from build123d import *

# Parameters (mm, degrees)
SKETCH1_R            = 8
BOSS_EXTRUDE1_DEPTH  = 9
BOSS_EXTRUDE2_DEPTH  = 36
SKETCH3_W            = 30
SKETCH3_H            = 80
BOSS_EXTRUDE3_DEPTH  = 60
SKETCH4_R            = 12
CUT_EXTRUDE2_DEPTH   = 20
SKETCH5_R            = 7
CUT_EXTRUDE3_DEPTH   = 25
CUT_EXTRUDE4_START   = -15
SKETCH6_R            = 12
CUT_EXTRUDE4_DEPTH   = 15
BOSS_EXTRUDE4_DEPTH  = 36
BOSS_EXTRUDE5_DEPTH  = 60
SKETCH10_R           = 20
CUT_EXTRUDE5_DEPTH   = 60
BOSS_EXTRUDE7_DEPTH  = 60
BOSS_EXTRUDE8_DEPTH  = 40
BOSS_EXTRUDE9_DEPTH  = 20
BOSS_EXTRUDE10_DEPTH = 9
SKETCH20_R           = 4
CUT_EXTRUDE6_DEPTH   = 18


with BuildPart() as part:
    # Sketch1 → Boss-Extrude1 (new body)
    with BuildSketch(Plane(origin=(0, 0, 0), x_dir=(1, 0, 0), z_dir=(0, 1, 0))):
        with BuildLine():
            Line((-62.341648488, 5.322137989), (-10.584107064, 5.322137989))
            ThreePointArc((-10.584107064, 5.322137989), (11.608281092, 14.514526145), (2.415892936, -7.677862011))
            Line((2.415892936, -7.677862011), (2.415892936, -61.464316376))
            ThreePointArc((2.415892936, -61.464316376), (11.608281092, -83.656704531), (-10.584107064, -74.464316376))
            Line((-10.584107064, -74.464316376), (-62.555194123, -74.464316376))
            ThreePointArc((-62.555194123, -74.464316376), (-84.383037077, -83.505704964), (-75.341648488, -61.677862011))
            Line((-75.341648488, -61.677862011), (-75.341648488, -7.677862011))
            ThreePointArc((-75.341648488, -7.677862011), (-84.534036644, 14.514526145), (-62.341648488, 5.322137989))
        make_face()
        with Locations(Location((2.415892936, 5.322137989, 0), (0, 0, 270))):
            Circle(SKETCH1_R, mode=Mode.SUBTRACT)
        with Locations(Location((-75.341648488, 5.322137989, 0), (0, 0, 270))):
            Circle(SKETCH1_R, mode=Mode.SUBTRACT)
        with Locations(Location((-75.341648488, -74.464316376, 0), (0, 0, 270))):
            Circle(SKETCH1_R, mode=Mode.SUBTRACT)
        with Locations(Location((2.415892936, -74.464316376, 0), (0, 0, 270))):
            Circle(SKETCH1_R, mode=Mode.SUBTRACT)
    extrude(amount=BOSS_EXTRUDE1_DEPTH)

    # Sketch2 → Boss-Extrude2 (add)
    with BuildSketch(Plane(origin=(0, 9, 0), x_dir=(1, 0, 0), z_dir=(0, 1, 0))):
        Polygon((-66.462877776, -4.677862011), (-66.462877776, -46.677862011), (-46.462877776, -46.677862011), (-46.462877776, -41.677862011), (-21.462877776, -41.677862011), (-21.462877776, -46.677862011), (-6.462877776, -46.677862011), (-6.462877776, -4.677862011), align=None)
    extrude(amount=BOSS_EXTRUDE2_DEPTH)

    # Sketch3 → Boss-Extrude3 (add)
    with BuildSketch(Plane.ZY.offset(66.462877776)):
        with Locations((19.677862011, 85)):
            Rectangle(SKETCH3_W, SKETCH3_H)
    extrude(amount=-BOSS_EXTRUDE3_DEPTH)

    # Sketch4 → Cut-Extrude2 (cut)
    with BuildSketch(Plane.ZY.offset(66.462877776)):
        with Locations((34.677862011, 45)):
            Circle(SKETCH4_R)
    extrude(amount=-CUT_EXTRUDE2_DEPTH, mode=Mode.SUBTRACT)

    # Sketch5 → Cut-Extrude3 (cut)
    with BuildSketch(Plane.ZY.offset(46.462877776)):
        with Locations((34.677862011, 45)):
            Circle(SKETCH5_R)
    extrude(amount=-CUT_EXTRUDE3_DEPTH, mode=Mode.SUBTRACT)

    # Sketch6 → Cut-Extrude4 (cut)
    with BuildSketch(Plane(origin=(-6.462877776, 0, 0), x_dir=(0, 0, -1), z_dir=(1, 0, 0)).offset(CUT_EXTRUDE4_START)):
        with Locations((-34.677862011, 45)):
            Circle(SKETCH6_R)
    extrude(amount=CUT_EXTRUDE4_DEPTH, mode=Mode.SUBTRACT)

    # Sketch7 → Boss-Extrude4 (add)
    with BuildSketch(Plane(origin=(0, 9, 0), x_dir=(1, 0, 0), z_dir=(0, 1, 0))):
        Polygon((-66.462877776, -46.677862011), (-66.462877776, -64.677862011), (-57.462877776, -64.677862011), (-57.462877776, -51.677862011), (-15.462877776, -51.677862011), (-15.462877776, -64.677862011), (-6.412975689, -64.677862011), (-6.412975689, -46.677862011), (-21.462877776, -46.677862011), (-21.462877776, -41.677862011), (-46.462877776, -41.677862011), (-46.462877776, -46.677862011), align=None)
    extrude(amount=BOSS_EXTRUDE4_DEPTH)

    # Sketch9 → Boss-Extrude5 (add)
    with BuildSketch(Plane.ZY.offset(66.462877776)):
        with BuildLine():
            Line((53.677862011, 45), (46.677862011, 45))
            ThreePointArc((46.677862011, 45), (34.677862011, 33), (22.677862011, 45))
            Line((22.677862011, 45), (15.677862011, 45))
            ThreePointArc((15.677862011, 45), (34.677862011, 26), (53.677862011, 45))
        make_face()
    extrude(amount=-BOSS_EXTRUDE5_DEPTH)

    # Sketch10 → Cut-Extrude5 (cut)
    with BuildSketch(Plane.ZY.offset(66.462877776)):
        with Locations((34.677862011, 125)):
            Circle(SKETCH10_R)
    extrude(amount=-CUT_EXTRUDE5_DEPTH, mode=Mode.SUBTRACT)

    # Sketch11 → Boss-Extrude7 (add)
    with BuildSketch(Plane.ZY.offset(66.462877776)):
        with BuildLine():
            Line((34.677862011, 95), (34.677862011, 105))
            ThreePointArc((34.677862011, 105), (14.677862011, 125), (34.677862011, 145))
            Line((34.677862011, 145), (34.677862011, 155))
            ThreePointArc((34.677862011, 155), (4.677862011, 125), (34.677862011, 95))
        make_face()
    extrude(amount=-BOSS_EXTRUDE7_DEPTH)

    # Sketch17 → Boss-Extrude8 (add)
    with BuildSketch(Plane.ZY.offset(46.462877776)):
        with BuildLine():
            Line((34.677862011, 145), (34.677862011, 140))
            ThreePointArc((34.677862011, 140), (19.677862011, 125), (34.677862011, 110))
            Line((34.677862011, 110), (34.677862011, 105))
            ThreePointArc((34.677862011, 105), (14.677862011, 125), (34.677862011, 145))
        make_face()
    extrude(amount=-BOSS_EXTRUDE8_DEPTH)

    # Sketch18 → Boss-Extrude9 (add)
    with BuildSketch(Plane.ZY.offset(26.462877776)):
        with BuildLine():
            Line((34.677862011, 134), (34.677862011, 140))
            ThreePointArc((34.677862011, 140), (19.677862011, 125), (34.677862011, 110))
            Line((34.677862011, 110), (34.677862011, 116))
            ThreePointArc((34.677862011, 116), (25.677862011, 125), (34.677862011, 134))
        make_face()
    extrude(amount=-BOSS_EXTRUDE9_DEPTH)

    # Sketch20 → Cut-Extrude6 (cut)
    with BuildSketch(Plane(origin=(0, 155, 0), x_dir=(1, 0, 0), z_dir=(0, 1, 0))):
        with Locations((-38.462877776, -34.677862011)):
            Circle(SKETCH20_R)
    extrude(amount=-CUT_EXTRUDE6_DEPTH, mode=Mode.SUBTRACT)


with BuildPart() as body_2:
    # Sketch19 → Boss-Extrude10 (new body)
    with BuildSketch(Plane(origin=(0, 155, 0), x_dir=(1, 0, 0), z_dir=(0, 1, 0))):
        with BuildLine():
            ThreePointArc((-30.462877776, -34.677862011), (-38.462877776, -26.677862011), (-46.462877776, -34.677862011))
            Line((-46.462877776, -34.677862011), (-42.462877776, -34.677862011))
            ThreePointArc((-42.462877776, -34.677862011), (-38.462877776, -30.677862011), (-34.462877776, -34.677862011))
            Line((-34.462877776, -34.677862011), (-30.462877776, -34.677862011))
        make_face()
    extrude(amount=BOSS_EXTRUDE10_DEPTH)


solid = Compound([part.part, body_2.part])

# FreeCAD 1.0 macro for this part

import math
import FreeCAD as App
import Part
import Sketcher

V = App.Vector
Q = App.Units.Quantity


def add_polygon(sketch, points):
    """Adds a closed chain of lines whose ends are joined by coincident constraints."""
    first, n = sketch.GeometryCount, len(points)
    for a, b in zip(points, points[1:] + points[:1]):
        sketch.addGeometry(Part.LineSegment(App.Vector(*a, 0), App.Vector(*b, 0)), False)
    for i in range(n):
        sketch.addConstraint(Sketcher.Constraint("Coincident", first + i, 2, first + (i + 1) % n, 1))

doc = App.newDocument("Part")
body = doc.addObject("PartDesign::Body", "Body")

# Sketch on XZ plane
sketch1 = doc.addObject("Sketcher::SketchObject", "Sketch")
body.addObject(sketch1)
sketch1.AttachmentSupport = (doc.XZ_Plane, [""])
sketch1.MapMode = "FlatFace"
sketch1.addGeometry([
    Part.LineSegment(V(-10.584107, -5.322138, 0), V(-62.341648, -5.322138, 0)),  # 0
    Part.ArcOfCircle(Part.Circle(V(-75.341648, -5.322138, 0), V(0, 0, 1), 13), math.radians(90), math.radians(360)),  # 1
    Part.LineSegment(V(-75.341648, 7.677862, 0), V(-75.341648, 61.677862, 0)),  # 2
    Part.ArcOfCircle(Part.Circle(V(-75.341648, 74.464316, 0), V(0, 0, 1), 12.786454), math.radians(0), math.radians(270)),  # 3
    Part.LineSegment(V(-62.555194, 74.464316, 0), V(-10.584107, 74.464316, 0)),  # 4
    Part.ArcOfCircle(Part.Circle(V(2.415893, 74.464316, 0), V(0, 0, 1), 13), math.radians(-90), math.radians(180)),  # 5
    Part.LineSegment(V(2.415893, 61.464316, 0), V(2.415893, 7.677862, 0)),  # 6
    Part.ArcOfCircle(Part.Circle(V(2.415893, -5.322138, 0), V(0, 0, 1), 13), math.radians(180), math.radians(450)),  # 7
    Part.Circle(V(2.415893, 74.464316, 0), V(0, 0, 1), 8),  # 8
    Part.Circle(V(-75.341648, 74.464316, 0), V(0, 0, 1), 8),  # 9
    Part.Circle(V(2.415893, -5.322138, 0), V(0, 0, 1), 8),  # 10
    Part.Circle(V(-75.341648, -5.322138, 0), V(0, 0, 1), 8),  # 11
], False)
sketch1.addConstraint([
    Sketcher.Constraint("Coincident", 0, 2, 1, 2),
    Sketcher.Constraint("Coincident", 1, 1, 2, 1),
    Sketcher.Constraint("Coincident", 2, 2, 3, 2),
    Sketcher.Constraint("Coincident", 3, 1, 4, 1),
    Sketcher.Constraint("Coincident", 4, 2, 5, 2),
    Sketcher.Constraint("Coincident", 5, 1, 6, 1),
    Sketcher.Constraint("Coincident", 6, 2, 7, 2),
    Sketcher.Constraint("Coincident", 7, 1, 0, 1),
    Sketcher.Constraint("Horizontal", 0),
    Sketcher.Constraint("Vertical", 2),
    Sketcher.Constraint("Horizontal", 4),
    Sketcher.Constraint("Vertical", 6),
    Sketcher.Constraint("Coincident", 8, 3, 5, 3),
    Sketcher.Constraint("Coincident", 9, 3, 3, 3),
    Sketcher.Constraint("Coincident", 10, 3, 7, 3),
    Sketcher.Constraint("Coincident", 11, 3, 1, 3),
    Sketcher.Constraint("Equal", 1, 5),
    Sketcher.Constraint("Equal", 5, 7),
    Sketcher.Constraint("Equal", 8, 9),
    Sketcher.Constraint("Equal", 9, 10),
    Sketcher.Constraint("Equal", 10, 11),
    Sketcher.Constraint("Horizontal", 3, 3, 5, 3),
    Sketcher.Constraint("Horizontal", 1, 3, 7, 3),
    Sketcher.Constraint("Horizontal", 11, 3, 0, 2),
    Sketcher.Constraint("Horizontal", 9, 3, 3, 1),
    Sketcher.Constraint("Vertical", 1, 3, 3, 3),
    Sketcher.Constraint("Vertical", 5, 3, 7, 3),
    Sketcher.Constraint("Vertical", 11, 3, 1, 1),
    Sketcher.Constraint("Vertical", 10, 3, 5, 1),
    Sketcher.Constraint("Diameter", 8, Q("16 mm")),
    Sketcher.Constraint("Radius", 1, Q("13 mm")),
    Sketcher.Constraint("DistanceY", 2, 1, 2, 2, Q("54 mm")),
    Sketcher.Constraint("Radius", 3, Q("12.786454 mm")),
    Sketcher.Constraint("DistanceX", 0, 2, 0, 1, Q("51.757541 mm")),
    Sketcher.Constraint("DistanceX", 1, 3, -1, 1, Q("75.341648 mm")),
    Sketcher.Constraint("DistanceY", 1, 3, -1, 1, Q("5.322138 mm")),
])
pad1 = doc.addObject("PartDesign::Pad", "Pad")
body.addObject(pad1)
pad1.Profile = sketch1
pad1.Length = 9
pad1.Reversed = True

# Sketch on XZ plane
sketch2 = doc.addObject("Sketcher::SketchObject", "Sketch001")
body.addObject(sketch2)
sketch2.AttachmentSupport = (doc.XZ_Plane, [""])
sketch2.MapMode = "FlatFace"
sketch2.AttachmentOffset = App.Placement(V(0, 0, -9), App.Rotation())
add_polygon(sketch2, [(-66.462878, 4.677862), (-66.462878, 46.677862), (-46.462878, 46.677862), (-46.462878, 41.677862), (-21.462878, 41.677862), (-21.462878, 46.677862), (-6.462878, 46.677862), (-6.462878, 4.677862)])  # lines 0-7
sketch2.addConstraint([
    Sketcher.Constraint("Vertical", 0),
    Sketcher.Constraint("Horizontal", 1),
    Sketcher.Constraint("Vertical", 2),
    Sketcher.Constraint("Horizontal", 3),
    Sketcher.Constraint("Vertical", 4),
    Sketcher.Constraint("Horizontal", 5),
    Sketcher.Constraint("Vertical", 6),
    Sketcher.Constraint("Horizontal", 7),
    Sketcher.Constraint("Horizontal", 1, 2, 4, 2),
    Sketcher.Constraint("DistanceX", 1, 1, 1, 2, Q("20 mm")),
    Sketcher.Constraint("DistanceX", 3, 1, 3, 2, Q("25 mm")),
    Sketcher.Constraint("DistanceX", 5, 1, 5, 2, Q("15 mm")),
    Sketcher.Constraint("DistanceY", 0, 1, 0, 2, Q("42 mm")),
    Sketcher.Constraint("DistanceY", 2, 2, 2, 1, Q("5 mm")),
    Sketcher.Constraint("DistanceX", 0, 2, -1, 1, Q("66.462878 mm")),
    Sketcher.Constraint("DistanceY", -1, 1, 0, 2, Q("46.677862 mm")),
])
pad2 = doc.addObject("PartDesign::Pad", "Pad001")
body.addObject(pad2)
pad2.Profile = sketch2
pad2.Length = 36
pad2.Reversed = True

# Sketch on YZ plane
sketch3 = doc.addObject("Sketcher::SketchObject", "Sketch002")
body.addObject(sketch3)
sketch3.AttachmentSupport = (doc.YZ_Plane, [""])
sketch3.MapMode = "FlatFace"
sketch3.AttachmentOffset = App.Placement(V(0, 0, -66.462878), App.Rotation())
add_polygon(sketch3, [(125, 4.677862), (45, 4.677862), (45, 34.677862), (125, 34.677862)])  # lines 0-3
sketch3.addConstraint([
    Sketcher.Constraint("Horizontal", 0),
    Sketcher.Constraint("Vertical", 1),
    Sketcher.Constraint("Horizontal", 2),
    Sketcher.Constraint("Vertical", 3),
    Sketcher.Constraint("DistanceX", 0, 2, 0, 1, Q("80 mm")),
    Sketcher.Constraint("DistanceY", 1, 1, 1, 2, Q("30 mm")),
    Sketcher.Constraint("DistanceX", -1, 1, 0, 2, Q("45 mm")),
    Sketcher.Constraint("DistanceY", -1, 1, 0, 2, Q("4.677862 mm")),
])
pad3 = doc.addObject("PartDesign::Pad", "Pad002")
body.addObject(pad3)
pad3.Profile = sketch3
pad3.Length = 60

# Sketch on YZ plane
sketch4 = doc.addObject("Sketcher::SketchObject", "Sketch003")
body.addObject(sketch4)
sketch4.AttachmentSupport = (doc.YZ_Plane, [""])
sketch4.MapMode = "FlatFace"
sketch4.AttachmentOffset = App.Placement(V(0, 0, -66.462878), App.Rotation())
sketch4.addGeometry(Part.Circle(V(45, 34.677862, 0), V(0, 0, 1), 12), False)
sketch4.addConstraint([
    Sketcher.Constraint("Diameter", 0, Q("24 mm")),
    Sketcher.Constraint("DistanceX", -1, 1, 0, 3, Q("45 mm")),
    Sketcher.Constraint("DistanceY", -1, 1, 0, 3, Q("34.677862 mm")),
])
pocket1 = doc.addObject("PartDesign::Pocket", "Pocket")
body.addObject(pocket1)
pocket1.Profile = sketch4
pocket1.Length = 20
pocket1.Reversed = True

# Sketch on YZ plane
sketch5 = doc.addObject("Sketcher::SketchObject", "Sketch004")
body.addObject(sketch5)
sketch5.AttachmentSupport = (doc.YZ_Plane, [""])
sketch5.MapMode = "FlatFace"
sketch5.AttachmentOffset = App.Placement(V(0, 0, -46.462878), App.Rotation())
sketch5.addGeometry(Part.Circle(V(45, 34.677862, 0), V(0, 0, 1), 7), False)
sketch5.addConstraint([
    Sketcher.Constraint("Diameter", 0, Q("14 mm")),
    Sketcher.Constraint("DistanceX", -1, 1, 0, 3, Q("45 mm")),
    Sketcher.Constraint("DistanceY", -1, 1, 0, 3, Q("34.677862 mm")),
])
pocket2 = doc.addObject("PartDesign::Pocket", "Pocket001")
body.addObject(pocket2)
pocket2.Profile = sketch5
pocket2.Length = 25
pocket2.Reversed = True

# Sketch on YZ plane
sketch6 = doc.addObject("Sketcher::SketchObject", "Sketch005")
body.addObject(sketch6)
sketch6.AttachmentSupport = (doc.YZ_Plane, [""])
sketch6.MapMode = "FlatFace"
sketch6.AttachmentOffset = App.Placement(V(0, 0, -21.462878), App.Rotation())
sketch6.addGeometry(Part.Circle(V(45, 34.677862, 0), V(0, 0, 1), 12), False)
sketch6.addConstraint([
    Sketcher.Constraint("Diameter", 0, Q("24 mm")),
    Sketcher.Constraint("DistanceX", -1, 1, 0, 3, Q("45 mm")),
    Sketcher.Constraint("DistanceY", -1, 1, 0, 3, Q("34.677862 mm")),
])
pocket3 = doc.addObject("PartDesign::Pocket", "Pocket002")
body.addObject(pocket3)
pocket3.Profile = sketch6
pocket3.Length = 15
pocket3.Reversed = True

# Sketch on XZ plane
sketch7 = doc.addObject("Sketcher::SketchObject", "Sketch006")
body.addObject(sketch7)
sketch7.AttachmentSupport = (doc.XZ_Plane, [""])
sketch7.MapMode = "FlatFace"
sketch7.AttachmentOffset = App.Placement(V(0, 0, -9), App.Rotation())
add_polygon(sketch7, [(-66.462878, 46.677862), (-66.462878, 64.677862), (-57.462878, 64.677862), (-57.462878, 51.677862), (-15.462878, 51.677862), (-15.462878, 64.677862), (-6.412976, 64.677862), (-6.412976, 46.677862), (-21.462878, 46.677862), (-21.462878, 41.677862), (-46.462878, 41.677862), (-46.462878, 46.677862)])  # lines 0-11
sketch7.addConstraint([
    Sketcher.Constraint("Vertical", 0),
    Sketcher.Constraint("Horizontal", 1),
    Sketcher.Constraint("Vertical", 2),
    Sketcher.Constraint("Horizontal", 3),
    Sketcher.Constraint("Vertical", 4),
    Sketcher.Constraint("Horizontal", 5),
    Sketcher.Constraint("Vertical", 6),
    Sketcher.Constraint("Horizontal", 7),
    Sketcher.Constraint("Vertical", 8),
    Sketcher.Constraint("Horizontal", 9),
    Sketcher.Constraint("Vertical", 10),
    Sketcher.Constraint("Horizontal", 11),
    Sketcher.Constraint("Horizontal", 1, 2, 4, 2),
    Sketcher.Constraint("Horizontal", 7, 2, 10, 2),
    Sketcher.Constraint("DistanceX", 1, 1, 1, 2, Q("9 mm")),
    Sketcher.Constraint("DistanceX", 3, 1, 3, 2, Q("42 mm")),
    Sketcher.Constraint("DistanceX", 9, 2, 9, 1, Q("25 mm")),
    Sketcher.Constraint("DistanceX", 11, 2, 11, 1, Q("20 mm")),
    Sketcher.Constraint("DistanceY", 0, 1, 0, 2, Q("18 mm")),
    Sketcher.Constraint("DistanceY", 2, 2, 2, 1, Q("13 mm")),
    Sketcher.Constraint("DistanceY", 8, 2, 8, 1, Q("5 mm")),
    Sketcher.Constraint("DistanceX", 5, 1, 5, 2, Q("9.049902 mm")),
    Sketcher.Constraint("DistanceX", 0, 2, -1, 1, Q("66.462878 mm")),
    Sketcher.Constraint("DistanceY", -1, 1, 0, 2, Q("64.677862 mm")),
])
pad4 = doc.addObject("PartDesign::Pad", "Pad003")
body.addObject(pad4)
pad4.Profile = sketch7
pad4.Length = 36
pad4.Reversed = True

# Sketch on YZ plane
sketch8 = doc.addObject("Sketcher::SketchObject", "Sketch007")
body.addObject(sketch8)
sketch8.AttachmentSupport = (doc.YZ_Plane, [""])
sketch8.MapMode = "FlatFace"
sketch8.AttachmentOffset = App.Placement(V(0, 0, -66.462878), App.Rotation())
sketch8.addGeometry([
    Part.LineSegment(V(45, 53.677862, 0), V(45, 46.677862, 0)),
    Part.ArcOfCircle(Part.Circle(V(45, 34.677862, 0), V(0, 0, 1), 12), math.radians(90), math.radians(270)),
    Part.LineSegment(V(45, 22.677862, 0), V(45, 15.677862, 0)),
    Part.ArcOfCircle(Part.Circle(V(45, 34.677862, 0), V(0, 0, 1), 19), math.radians(90), math.radians(270)),
], False)
sketch8.addConstraint([
    Sketcher.Constraint("Coincident", 0, 2, 1, 1),
    Sketcher.Constraint("Coincident", 1, 2, 2, 1),
    Sketcher.Constraint("Coincident", 2, 2, 3, 2),
    Sketcher.Constraint("Coincident", 3, 1, 0, 1),
    Sketcher.Constraint("Vertical", 0),
    Sketcher.Constraint("Vertical", 2),
    Sketcher.Constraint("Coincident", 3, 3, 1, 3),
    Sketcher.Constraint("Vertical", 3, 3, 0, 2),
    Sketcher.Constraint("Vertical", 0, 2, 1, 2),
    Sketcher.Constraint("Radius", 1, Q("12 mm")),
    Sketcher.Constraint("Radius", 3, Q("19 mm")),
    Sketcher.Constraint("DistanceX", -1, 1, 1, 3, Q("45 mm")),
    Sketcher.Constraint("DistanceY", -1, 1, 1, 3, Q("34.677862 mm")),
])
pad5 = doc.addObject("PartDesign::Pad", "Pad004")
body.addObject(pad5)
pad5.Profile = sketch8
pad5.Length = 60

# Sketch on YZ plane
sketch9 = doc.addObject("Sketcher::SketchObject", "Sketch008")
body.addObject(sketch9)
sketch9.AttachmentSupport = (doc.YZ_Plane, [""])
sketch9.MapMode = "FlatFace"
sketch9.AttachmentOffset = App.Placement(V(0, 0, -66.462878), App.Rotation())
sketch9.addGeometry(Part.Circle(V(125, 34.677862, 0), V(0, 0, 1), 20), False)
sketch9.addConstraint([
    Sketcher.Constraint("Diameter", 0, Q("40 mm")),
    Sketcher.Constraint("DistanceX", -1, 1, 0, 3, Q("125 mm")),
    Sketcher.Constraint("DistanceY", -1, 1, 0, 3, Q("34.677862 mm")),
])
pocket4 = doc.addObject("PartDesign::Pocket", "Pocket003")
body.addObject(pocket4)
pocket4.Profile = sketch9
pocket4.Length = 60
pocket4.Reversed = True

# Sketch on YZ plane
sketch10 = doc.addObject("Sketcher::SketchObject", "Sketch009")
body.addObject(sketch10)
sketch10.AttachmentSupport = (doc.YZ_Plane, [""])
sketch10.MapMode = "FlatFace"
sketch10.AttachmentOffset = App.Placement(V(0, 0, -66.462878), App.Rotation())
sketch10.addGeometry([
    Part.LineSegment(V(95, 34.677862, 0), V(105, 34.677862, 0)),
    Part.ArcOfCircle(Part.Circle(V(125, 34.677862, 0), V(0, 0, 1), 20), math.radians(180), math.radians(360)),
    Part.LineSegment(V(145, 34.677862, 0), V(155, 34.677862, 0)),
    Part.ArcOfCircle(Part.Circle(V(125, 34.677862, 0), V(0, 0, 1), 30), math.radians(180), math.radians(360)),
], False)
sketch10.addConstraint([
    Sketcher.Constraint("Coincident", 0, 2, 1, 1),
    Sketcher.Constraint("Coincident", 1, 2, 2, 1),
    Sketcher.Constraint("Coincident", 2, 2, 3, 2),
    Sketcher.Constraint("Coincident", 3, 1, 0, 1),
    Sketcher.Constraint("Horizontal", 0),
    Sketcher.Constraint("Horizontal", 2),
    Sketcher.Constraint("Coincident", 3, 3, 1, 3),
    Sketcher.Constraint("Horizontal", 3, 3, 0, 2),
    Sketcher.Constraint("Horizontal", 0, 2, 1, 2),
    Sketcher.Constraint("Radius", 1, Q("20 mm")),
    Sketcher.Constraint("Radius", 3, Q("30 mm")),
    Sketcher.Constraint("DistanceX", -1, 1, 1, 3, Q("125 mm")),
    Sketcher.Constraint("DistanceY", -1, 1, 1, 3, Q("34.677862 mm")),
])
pad6 = doc.addObject("PartDesign::Pad", "Pad005")
body.addObject(pad6)
pad6.Profile = sketch10
pad6.Length = 60

# Sketch on YZ plane
sketch11 = doc.addObject("Sketcher::SketchObject", "Sketch010")
body.addObject(sketch11)
sketch11.AttachmentSupport = (doc.YZ_Plane, [""])
sketch11.MapMode = "FlatFace"
sketch11.AttachmentOffset = App.Placement(V(0, 0, -46.462878), App.Rotation())
sketch11.addGeometry([
    Part.LineSegment(V(140, 34.677862, 0), V(145, 34.677862, 0)),
    Part.ArcOfCircle(Part.Circle(V(125, 34.677862, 0), V(0, 0, 1), 20), math.radians(180), math.radians(360)),
    Part.LineSegment(V(105, 34.677862, 0), V(110, 34.677862, 0)),
    Part.ArcOfCircle(Part.Circle(V(125, 34.677862, 0), V(0, 0, 1), 15), math.radians(180), math.radians(360)),
], False)
sketch11.addConstraint([
    Sketcher.Constraint("Coincident", 0, 2, 1, 2),
    Sketcher.Constraint("Coincident", 1, 1, 2, 1),
    Sketcher.Constraint("Coincident", 2, 2, 3, 1),
    Sketcher.Constraint("Coincident", 3, 2, 0, 1),
    Sketcher.Constraint("Horizontal", 0),
    Sketcher.Constraint("Horizontal", 2),
    Sketcher.Constraint("Coincident", 3, 3, 1, 3),
    Sketcher.Constraint("Horizontal", 3, 3, 0, 2),
    Sketcher.Constraint("Horizontal", 0, 2, 1, 1),
    Sketcher.Constraint("Radius", 1, Q("20 mm")),
    Sketcher.Constraint("Radius", 3, Q("15 mm")),
    Sketcher.Constraint("DistanceX", -1, 1, 1, 3, Q("125 mm")),
    Sketcher.Constraint("DistanceY", -1, 1, 1, 3, Q("34.677862 mm")),
])
pad7 = doc.addObject("PartDesign::Pad", "Pad006")
body.addObject(pad7)
pad7.Profile = sketch11
pad7.Length = 40

# Sketch on YZ plane
sketch12 = doc.addObject("Sketcher::SketchObject", "Sketch011")
body.addObject(sketch12)
sketch12.AttachmentSupport = (doc.YZ_Plane, [""])
sketch12.MapMode = "FlatFace"
sketch12.AttachmentOffset = App.Placement(V(0, 0, -26.462878), App.Rotation())
sketch12.addGeometry([
    Part.LineSegment(V(134, 34.677862, 0), V(140, 34.677862, 0)),
    Part.ArcOfCircle(Part.Circle(V(125, 34.677862, 0), V(0, 0, 1), 15), math.radians(180), math.radians(360)),
    Part.LineSegment(V(110, 34.677862, 0), V(116, 34.677862, 0)),
    Part.ArcOfCircle(Part.Circle(V(125, 34.677862, 0), V(0, 0, 1), 9), math.radians(180), math.radians(360)),
], False)
sketch12.addConstraint([
    Sketcher.Constraint("Coincident", 0, 2, 1, 2),
    Sketcher.Constraint("Coincident", 1, 1, 2, 1),
    Sketcher.Constraint("Coincident", 2, 2, 3, 1),
    Sketcher.Constraint("Coincident", 3, 2, 0, 1),
    Sketcher.Constraint("Horizontal", 0),
    Sketcher.Constraint("Horizontal", 2),
    Sketcher.Constraint("Coincident", 3, 3, 1, 3),
    Sketcher.Constraint("Horizontal", 3, 3, 0, 2),
    Sketcher.Constraint("Horizontal", 0, 2, 1, 1),
    Sketcher.Constraint("Radius", 1, Q("15 mm")),
    Sketcher.Constraint("Radius", 3, Q("9 mm")),
    Sketcher.Constraint("DistanceX", -1, 1, 1, 3, Q("125 mm")),
    Sketcher.Constraint("DistanceY", -1, 1, 1, 3, Q("34.677862 mm")),
])
pad8 = doc.addObject("PartDesign::Pad", "Pad007")
body.addObject(pad8)
pad8.Profile = sketch12
pad8.Length = 20

# Sketch on XZ plane
sketch13 = doc.addObject("Sketcher::SketchObject", "Sketch012")
body.addObject(sketch13)
sketch13.AttachmentSupport = (doc.XZ_Plane, [""])
sketch13.MapMode = "FlatFace"
sketch13.AttachmentOffset = App.Placement(V(0, 0, -155), App.Rotation())
sketch13.addGeometry(Part.Circle(V(-38.462878, 34.677862, 0), V(0, 0, 1), 4), False)
sketch13.addConstraint([
    Sketcher.Constraint("Diameter", 0, Q("8 mm")),
    Sketcher.Constraint("DistanceX", 0, 3, -1, 1, Q("38.462878 mm")),
    Sketcher.Constraint("DistanceY", -1, 1, 0, 3, Q("34.677862 mm")),
])
pocket5 = doc.addObject("PartDesign::Pocket", "Pocket004")
body.addObject(pocket5)
pocket5.Profile = sketch13
pocket5.Length = 18
pocket5.Reversed = True
body2 = doc.addObject("PartDesign::Body", "Body001")

# Sketch on XZ plane
sketch14 = doc.addObject("Sketcher::SketchObject", "Sketch013")
body2.addObject(sketch14)
sketch14.AttachmentSupport = (doc.getObject("XZ_Plane001"), [""])
sketch14.MapMode = "FlatFace"
sketch14.AttachmentOffset = App.Placement(V(0, 0, -155), App.Rotation())
sketch14.addGeometry([
    Part.ArcOfCircle(Part.Circle(V(-38.462878, 34.677862, 0), V(0, 0, 1), 8), math.radians(180), math.radians(360)),
    Part.LineSegment(V(-46.462878, 34.677862, 0), V(-42.462878, 34.677862, 0)),
    Part.ArcOfCircle(Part.Circle(V(-38.462878, 34.677862, 0), V(0, 0, 1), 4), math.radians(180), math.radians(360)),
    Part.LineSegment(V(-34.462878, 34.677862, 0), V(-30.462878, 34.677862, 0)),
], False)
sketch14.addConstraint([
    Sketcher.Constraint("Coincident", 0, 1, 1, 1),
    Sketcher.Constraint("Coincident", 1, 2, 2, 1),
    Sketcher.Constraint("Coincident", 2, 2, 3, 1),
    Sketcher.Constraint("Coincident", 3, 2, 0, 2),
    Sketcher.Constraint("Horizontal", 1),
    Sketcher.Constraint("Horizontal", 3),
    Sketcher.Constraint("Coincident", 2, 3, 0, 3),
    Sketcher.Constraint("Horizontal", 2, 3, 0, 1),
    Sketcher.Constraint("Horizontal", 1, 2, 2, 2),
    Sketcher.Constraint("Radius", 0, Q("8 mm")),
    Sketcher.Constraint("Radius", 2, Q("4 mm")),
    Sketcher.Constraint("DistanceX", 0, 3, -1, 1, Q("38.462878 mm")),
    Sketcher.Constraint("DistanceY", -1, 1, 0, 3, Q("34.677862 mm")),
])
pad9 = doc.addObject("PartDesign::Pad", "Pad008")
body2.addObject(pad9)
pad9.Profile = sketch14
pad9.Length = 9
pad9.Reversed = True

doc.recompute()
